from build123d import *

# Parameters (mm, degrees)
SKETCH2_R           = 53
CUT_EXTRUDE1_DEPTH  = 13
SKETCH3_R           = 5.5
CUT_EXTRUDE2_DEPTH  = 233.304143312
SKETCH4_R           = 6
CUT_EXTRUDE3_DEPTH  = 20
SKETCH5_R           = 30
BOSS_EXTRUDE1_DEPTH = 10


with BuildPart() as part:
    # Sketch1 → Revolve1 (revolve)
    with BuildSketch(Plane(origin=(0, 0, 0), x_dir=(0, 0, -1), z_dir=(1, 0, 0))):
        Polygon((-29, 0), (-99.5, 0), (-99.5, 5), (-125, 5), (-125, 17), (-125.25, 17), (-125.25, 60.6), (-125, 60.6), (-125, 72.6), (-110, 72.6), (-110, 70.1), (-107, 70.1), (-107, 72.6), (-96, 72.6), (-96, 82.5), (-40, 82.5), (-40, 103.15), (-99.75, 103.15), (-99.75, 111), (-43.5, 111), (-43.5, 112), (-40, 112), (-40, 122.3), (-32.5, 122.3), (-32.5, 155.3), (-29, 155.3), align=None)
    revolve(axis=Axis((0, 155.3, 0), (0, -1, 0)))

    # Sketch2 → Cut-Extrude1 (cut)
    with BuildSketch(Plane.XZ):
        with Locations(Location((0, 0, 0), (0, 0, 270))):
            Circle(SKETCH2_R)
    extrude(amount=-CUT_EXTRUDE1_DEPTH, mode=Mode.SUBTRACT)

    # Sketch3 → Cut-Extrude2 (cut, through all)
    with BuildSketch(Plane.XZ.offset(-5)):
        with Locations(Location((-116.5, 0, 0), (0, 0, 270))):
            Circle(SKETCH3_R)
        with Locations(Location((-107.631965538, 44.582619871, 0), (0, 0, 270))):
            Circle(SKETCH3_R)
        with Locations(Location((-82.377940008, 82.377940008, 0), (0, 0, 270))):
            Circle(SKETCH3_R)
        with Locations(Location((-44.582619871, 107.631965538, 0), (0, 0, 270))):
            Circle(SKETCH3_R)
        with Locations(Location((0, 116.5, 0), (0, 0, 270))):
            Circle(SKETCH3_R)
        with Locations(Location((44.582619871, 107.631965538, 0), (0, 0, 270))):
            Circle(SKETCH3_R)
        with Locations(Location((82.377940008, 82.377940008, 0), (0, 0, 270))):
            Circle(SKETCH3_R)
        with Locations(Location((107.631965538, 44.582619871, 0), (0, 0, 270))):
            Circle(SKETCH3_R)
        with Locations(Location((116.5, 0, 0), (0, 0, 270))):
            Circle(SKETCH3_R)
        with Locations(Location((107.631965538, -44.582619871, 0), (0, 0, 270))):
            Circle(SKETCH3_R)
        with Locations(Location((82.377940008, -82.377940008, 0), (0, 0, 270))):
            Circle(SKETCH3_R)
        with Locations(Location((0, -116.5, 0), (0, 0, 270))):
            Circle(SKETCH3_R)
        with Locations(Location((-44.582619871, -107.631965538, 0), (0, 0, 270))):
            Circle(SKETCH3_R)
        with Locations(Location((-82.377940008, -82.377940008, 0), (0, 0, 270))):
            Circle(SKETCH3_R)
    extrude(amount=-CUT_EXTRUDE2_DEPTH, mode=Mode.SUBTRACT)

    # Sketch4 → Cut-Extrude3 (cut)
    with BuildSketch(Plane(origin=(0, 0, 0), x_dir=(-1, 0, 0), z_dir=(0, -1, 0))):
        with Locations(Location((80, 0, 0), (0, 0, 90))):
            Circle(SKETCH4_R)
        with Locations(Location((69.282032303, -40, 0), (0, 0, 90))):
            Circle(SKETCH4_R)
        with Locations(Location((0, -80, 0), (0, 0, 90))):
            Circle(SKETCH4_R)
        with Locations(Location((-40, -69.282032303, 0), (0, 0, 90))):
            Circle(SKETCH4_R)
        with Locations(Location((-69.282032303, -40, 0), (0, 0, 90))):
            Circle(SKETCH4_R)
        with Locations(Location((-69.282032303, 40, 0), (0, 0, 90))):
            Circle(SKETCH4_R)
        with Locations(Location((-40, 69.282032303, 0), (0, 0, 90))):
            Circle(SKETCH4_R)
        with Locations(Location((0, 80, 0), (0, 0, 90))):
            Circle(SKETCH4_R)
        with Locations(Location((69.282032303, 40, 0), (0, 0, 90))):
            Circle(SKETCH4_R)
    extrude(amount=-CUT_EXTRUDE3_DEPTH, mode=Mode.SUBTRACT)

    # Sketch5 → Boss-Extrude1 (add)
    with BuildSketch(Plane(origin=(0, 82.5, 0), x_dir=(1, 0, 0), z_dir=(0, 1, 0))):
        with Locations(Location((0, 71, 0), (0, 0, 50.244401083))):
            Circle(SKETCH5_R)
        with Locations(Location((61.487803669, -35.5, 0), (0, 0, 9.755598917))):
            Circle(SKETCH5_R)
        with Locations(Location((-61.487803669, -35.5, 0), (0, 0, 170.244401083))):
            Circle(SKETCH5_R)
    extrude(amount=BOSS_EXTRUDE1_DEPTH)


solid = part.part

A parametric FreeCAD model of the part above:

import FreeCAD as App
import Part
import Sketcher
Q = App.Units.Quantity

doc = App.newDocument("Part")
body = doc.addObject("PartDesign::Body", "Body")

sketch1 = body.newObject("Sketcher::SketchObject", "Sketch")
sketch1.AttachmentSupport = (doc.getObject("YZ_Plane"), [""])
sketch1.MapMode = "FlatFace"
sketch1.addGeometry(Part.LineSegment(App.Vector(0, 99.5, 0), App.Vector(0, 29, 0)), False)
sketch1.addGeometry(Part.LineSegment(App.Vector(0, 29, 0), App.Vector(155.3, 29, 0)), False)
sketch1.addGeometry(Part.LineSegment(App.Vector(155.3, 29, 0), App.Vector(155.3, 32.5, 0)), False)
sketch1.addGeometry(Part.LineSegment(App.Vector(155.3, 32.5, 0), App.Vector(122.3, 32.5, 0)), False)
sketch1.addGeometry(Part.LineSegment(App.Vector(122.3, 32.5, 0), App.Vector(122.3, 40, 0)), False)
sketch1.addGeometry(Part.LineSegment(App.Vector(122.3, 40, 0), App.Vector(112, 40, 0)), False)
sketch1.addGeometry(Part.LineSegment(App.Vector(112, 40, 0), App.Vector(112, 43.5, 0)), False)
sketch1.addGeometry(Part.LineSegment(App.Vector(112, 43.5, 0), App.Vector(111, 43.5, 0)), False)
sketch1.addGeometry(Part.LineSegment(App.Vector(111, 43.5, 0), App.Vector(111, 99.75, 0)), False)
sketch1.addGeometry(Part.LineSegment(App.Vector(111, 99.75, 0), App.Vector(103.15, 99.75, 0)), False)
sketch1.addGeometry(Part.LineSegment(App.Vector(103.15, 99.75, 0), App.Vector(103.15, 40, 0)), False)
sketch1.addGeometry(Part.LineSegment(App.Vector(103.15, 40, 0), App.Vector(82.5, 40, 0)), False)
sketch1.addGeometry(Part.LineSegment(App.Vector(82.5, 40, 0), App.Vector(82.5, 96, 0)), False)
sketch1.addGeometry(Part.LineSegment(App.Vector(82.5, 96, 0), App.Vector(72.6, 96, 0)), False)
sketch1.addGeometry(Part.LineSegment(App.Vector(72.6, 96, 0), App.Vector(72.6, 107, 0)), False)
sketch1.addGeometry(Part.LineSegment(App.Vector(72.6, 107, 0), App.Vector(70.1, 107, 0)), False)
sketch1.addGeometry(Part.LineSegment(App.Vector(70.1, 107, 0), App.Vector(70.1, 110, 0)), False)
sketch1.addGeometry(Part.LineSegment(App.Vector(70.1, 110, 0), App.Vector(72.6, 110, 0)), False)
sketch1.addGeometry(Part.LineSegment(App.Vector(72.6, 110, 0), App.Vector(72.6, 125, 0)), False)
sketch1.addGeometry(Part.LineSegment(App.Vector(72.6, 125, 0), App.Vector(60.6, 125, 0)), False)
sketch1.addGeometry(Part.LineSegment(App.Vector(60.6, 125, 0), App.Vector(60.6, 125.25, 0)), False)
sketch1.addGeometry(Part.LineSegment(App.Vector(60.6, 125.25, 0), App.Vector(17, 125.25, 0)), False)
sketch1.addGeometry(Part.LineSegment(App.Vector(17, 125.25, 0), App.Vector(17, 125, 0)), False)
sketch1.addGeometry(Part.LineSegment(App.Vector(17, 125, 0), App.Vector(5, 125, 0)), False)
sketch1.addGeometry(Part.LineSegment(App.Vector(5, 125, 0), App.Vector(5, 99.5, 0)), False)
sketch1.addGeometry(Part.LineSegment(App.Vector(5, 99.5, 0), App.Vector(0, 99.5, 0)), False)
sketch1.addConstraint(Sketcher.Constraint("Coincident", 0, 2, 1, 1))
sketch1.addConstraint(Sketcher.Constraint("Coincident", 1, 2, 2, 1))
sketch1.addConstraint(Sketcher.Constraint("Coincident", 2, 2, 3, 1))
sketch1.addConstraint(Sketcher.Constraint("Coincident", 3, 2, 4, 1))
sketch1.addConstraint(Sketcher.Constraint("Coincident", 4, 2, 5, 1))
sketch1.addConstraint(Sketcher.Constraint("Coincident", 5, 2, 6, 1))
sketch1.addConstraint(Sketcher.Constraint("Coincident", 6, 2, 7, 1))
sketch1.addConstraint(Sketcher.Constraint("Coincident", 7, 2, 8, 1))
sketch1.addConstraint(Sketcher.Constraint("Coincident", 8, 2, 9, 1))
sketch1.addConstraint(Sketcher.Constraint("Coincident", 9, 2, 10, 1))
sketch1.addConstraint(Sketcher.Constraint("Coincident", 10, 2, 11, 1))
sketch1.addConstraint(Sketcher.Constraint("Coincident", 11, 2, 12, 1))
sketch1.addConstraint(Sketcher.Constraint("Coincident", 12, 2, 13, 1))
sketch1.addConstraint(Sketcher.Constraint("Coincident", 13, 2, 14, 1))
sketch1.addConstraint(Sketcher.Constraint("Coincident", 14, 2, 15, 1))
sketch1.addConstraint(Sketcher.Constraint("Coincident", 15, 2, 16, 1))
sketch1.addConstraint(Sketcher.Constraint("Coincident", 16, 2, 17, 1))
sketch1.addConstraint(Sketcher.Constraint("Coincident", 17, 2, 18, 1))
sketch1.addConstraint(Sketcher.Constraint("Coincident", 18, 2, 19, 1))
sketch1.addConstraint(Sketcher.Constraint("Coincident", 19, 2, 20, 1))
sketch1.addConstraint(Sketcher.Constraint("Coincident", 20, 2, 21, 1))
sketch1.addConstraint(Sketcher.Constraint("Coincident", 21, 2, 22, 1))
sketch1.addConstraint(Sketcher.Constraint("Coincident", 22, 2, 23, 1))
sketch1.addConstraint(Sketcher.Constraint("Coincident", 23, 2, 24, 1))
sketch1.addConstraint(Sketcher.Constraint("Coincident", 24, 2, 25, 1))
sketch1.addConstraint(Sketcher.Constraint("Coincident", 25, 2, 0, 1))
sketch1.addConstraint(Sketcher.Constraint("Vertical", 0))
sketch1.addConstraint(Sketcher.Constraint("Horizontal", 1))
sketch1.addConstraint(Sketcher.Constraint("Vertical", 2))
sketch1.addConstraint(Sketcher.Constraint("Horizontal", 3))
sketch1.addConstraint(Sketcher.Constraint("Vertical", 4))
sketch1.addConstraint(Sketcher.Constraint("Horizontal", 5))
sketch1.addConstraint(Sketcher.Constraint("Vertical", 6))
sketch1.addConstraint(Sketcher.Constraint("Horizontal", 7))
sketch1.addConstraint(Sketcher.Constraint("Vertical", 8))
sketch1.addConstraint(Sketcher.Constraint("Horizontal", 9))
sketch1.addConstraint(Sketcher.Constraint("Vertical", 10))
sketch1.addConstraint(Sketcher.Constraint("Horizontal", 11))
sketch1.addConstraint(Sketcher.Constraint("Vertical", 12))
sketch1.addConstraint(Sketcher.Constraint("Horizontal", 13))
sketch1.addConstraint(Sketcher.Constraint("Vertical", 14))
sketch1.addConstraint(Sketcher.Constraint("Horizontal", 15))
sketch1.addConstraint(Sketcher.Constraint("Vertical", 16))
sketch1.addConstraint(Sketcher.Constraint("Horizontal", 17))
sketch1.addConstraint(Sketcher.Constraint("Vertical", 18))
sketch1.addConstraint(Sketcher.Constraint("Horizontal", 19))
sketch1.addConstraint(Sketcher.Constraint("Vertical", 20))
sketch1.addConstraint(Sketcher.Constraint("Horizontal", 21))
sketch1.addConstraint(Sketcher.Constraint("Vertical", 22))
sketch1.addConstraint(Sketcher.Constraint("Horizontal", 23))
sketch1.addConstraint(Sketcher.Constraint("Vertical", 24))
sketch1.addConstraint(Sketcher.Constraint("Horizontal", 25))
sketch1.addConstraint(Sketcher.Constraint("PointOnObject", 0, 2, -2))
sketch1.addConstraint(Sketcher.Constraint("Horizontal", 5, 2, 10, 2))
sketch1.addConstraint(Sketcher.Constraint("Horizontal", 19, 2, 22, 2))
sketch1.addConstraint(Sketcher.Constraint("Vertical", 14, 2, 17, 2))
sketch1.addConstraint(Sketcher.Constraint("Equal", 19, 23))
sketch1.addConstraint(Sketcher.Constraint("Equal", 2, 6))
sketch1.addConstraint(Sketcher.Constraint("DistanceX", 3, 2, 3, 1, Q("33 mm")))
sketch1.addConstraint(Sketcher.Constraint("DistanceX", 7, 2, 7, 1, Q("1 mm")))
sketch1.addConstraint(Sketcher.Constraint("DistanceX", 19, 2, 19, 1, Q("12 mm")))
sketch1.addConstraint(Sketcher.Constraint("DistanceX", 25, 2, 25, 1, Q("5 mm")))
sketch1.addConstraint(Sketcher.Constraint("DistanceY", 12, 1, 12, 2, Q("56 mm")))
sketch1.addConstraint(Sketcher.Constraint("DistanceY", 14, 1, 14, 2, Q("11 mm")))
sketch1.addConstraint(Sketcher.Constraint("DistanceY", 16, 1, 16, 2, Q("3 mm")))
sketch1.addConstraint(Sketcher.Constraint("DistanceY", 18, 1, 18, 2, Q("15 mm")))
sketch1.addConstraint(Sketcher.Constraint("DistanceX", 1, 1, 1, 2, Q("155.3 mm")))
sketch1.addConstraint(Sketcher.Constraint("DistanceX", 5, 2, 5, 1, Q("10.3 mm")))
sketch1.addConstraint(Sketcher.Constraint("DistanceX", 13, 2, 13, 1, Q("9.9 mm")))
sketch1.addConstraint(Sketcher.Constraint("DistanceX", 15, 2, 15, 1, Q("2.5 mm")))
sketch1.addConstraint(Sketcher.Constraint("DistanceX", 21, 2, 21, 1, Q("43.6 mm")))
sketch1.addConstraint(Sketcher.Constraint("DistanceY", 0, 2, 0, 1, Q("70.5 mm")))
sketch1.addConstraint(Sketcher.Constraint("DistanceY", 2, 1, 2, 2, Q("3.5 mm")))
sketch1.addConstraint(Sketcher.Constraint("DistanceY", 4, 1, 4, 2, Q("7.5 mm")))
sketch1.addConstraint(Sketcher.Constraint("DistanceY", -1, 1, 0, 2, Q("29 mm")))
sketch1.addConstraint(Sketcher.Constraint("DistanceX", 9, 2, 9, 1, Q("7.85 mm")))
sketch1.addConstraint(Sketcher.Constraint("DistanceY", 8, 1, 8, 2, Q("56.25 mm")))
sketch1.addConstraint(Sketcher.Constraint("DistanceY", 20, 1, 20, 2, Q("0.25 mm")))
revolution = body.newObject("PartDesign::Revolution", "Revolution")
revolution.Profile = sketch1
revolution.ReferenceAxis = (sketch1, ["H_Axis"])
revolution.Angle = 360

sketch2 = body.newObject("Sketcher::SketchObject", "Sketch001")
sketch2.AttachmentSupport = (doc.getObject("XZ_Plane"), [""])
sketch2.MapMode = "FlatFace"
sketch2.addGeometry(Part.Circle(App.Vector(0, 0, 0), App.Vector(0, 0, 1), 53), False)
sketch2.addConstraint(Sketcher.Constraint("Coincident", 0, 3, -1, 1))
sketch2.addConstraint(Sketcher.Constraint("Diameter", 0, Q("106 mm")))
pocket1 = body.newObject("PartDesign::Pocket", "Pocket")
pocket1.Profile = sketch2
pocket1.Length = 13

sketch3 = body.newObject("Sketcher::SketchObject", "Sketch002")
sketch3.AttachmentSupport = (doc.getObject("XZ_Plane"), [""])
sketch3.MapMode = "FlatFace"
sketch3.AttachmentOffset = App.Placement(App.Vector(0, 0, -5), App.Rotation())
sketch3.addGeometry(Part.Circle(App.Vector(-116, 0, 0), App.Vector(0, 0, 1), 6), False)
sketch3.addGeometry(Part.Circle(App.Vector(-108, 45, 0), App.Vector(0, 0, 1), 6), False)
sketch3.addGeometry(Part.Circle(App.Vector(-82, 82, 0), App.Vector(0, 0, 1), 6), False)
sketch3.addGeometry(Part.Circle(App.Vector(-45, 108, 0), App.Vector(0, 0, 1), 6), False)
sketch3.addGeometry(Part.Circle(App.Vector(0, 116, 0), App.Vector(0, 0, 1), 6), False)
sketch3.addGeometry(Part.Circle(App.Vector(45, 108, 0), App.Vector(0, 0, 1), 6), False)
sketch3.addGeometry(Part.Circle(App.Vector(82, 82, 0), App.Vector(0, 0, 1), 6), False)
sketch3.addGeometry(Part.Circle(App.Vector(108, 45, 0), App.Vector(0, 0, 1), 6), False)
sketch3.addGeometry(Part.Circle(App.Vector(116, 0, 0), App.Vector(0, 0, 1), 6), False)
sketch3.addGeometry(Part.Circle(App.Vector(108, -45, 0), App.Vector(0, 0, 1), 6), False)
sketch3.addGeometry(Part.Circle(App.Vector(82, -82, 0), App.Vector(0, 0, 1), 6), False)
sketch3.addGeometry(Part.Circle(App.Vector(0, -116, 0), App.Vector(0, 0, 1), 6), False)
sketch3.addGeometry(Part.Circle(App.Vector(-45, -108, 0), App.Vector(0, 0, 1), 6), False)
sketch3.addGeometry(Part.Circle(App.Vector(-82, -82, 0), App.Vector(0, 0, 1), 6), False)
sketch3.addConstraint(Sketcher.Constraint("Equal", 0, 1))
sketch3.addConstraint(Sketcher.Constraint("Equal", 1, 2))
sketch3.addConstraint(Sketcher.Constraint("Equal", 2, 3))
sketch3.addConstraint(Sketcher.Constraint("Equal", 3, 4))
sketch3.addConstraint(Sketcher.Constraint("Equal", 4, 5))
sketch3.addConstraint(Sketcher.Constraint("Equal", 5, 6))
sketch3.addConstraint(Sketcher.Constraint("Equal", 6, 7))
sketch3.addConstraint(Sketcher.Constraint("Equal", 7, 8))
sketch3.addConstraint(Sketcher.Constraint("Equal", 8, 9))
sketch3.addConstraint(Sketcher.Constraint("Equal", 9, 10))
sketch3.addConstraint(Sketcher.Constraint("Equal", 10, 11))
sketch3.addConstraint(Sketcher.Constraint("Equal", 11, 12))
sketch3.addConstraint(Sketcher.Constraint("Equal", 12, 13))
sketch3.addConstraint(Sketcher.Constraint("Symmetric", 0, 3, 8, 3, -1, 1))
sketch3.addConstraint(Sketcher.Constraint("Symmetric", 1, 3, 9, 3, -1, 1))
sketch3.addConstraint(Sketcher.Constraint("Symmetric", 2, 3, 10, 3, -1, 1))
sketch3.addConstraint(Sketcher.Constraint("Symmetric", 4, 3, 11, 3, -1, 1))
sketch3.addConstraint(Sketcher.Constraint("Symmetric", 5, 3, 12, 3, -1, 1))
sketch3.addConstraint(Sketcher.Constraint("Symmetric", 6, 3, 13, 3, -1, 1))
sketch3.addConstraint(Sketcher.Constraint("Symmetric", 3, 3, 5, 3, -2))
sketch3.addConstraint(Sketcher.Constraint("Symmetric", 2, 3, 6, 3, -2))
sketch3.addConstraint(Sketcher.Constraint("Symmetric", 1, 3, 7, 3, -2))
sketch3.addConstraint(Sketcher.Constraint("PointOnObject", 0, 3, -1))
sketch3.addConstraint(Sketcher.Constraint("PointOnObject", 4, 3, -2))
sketch3.addConstraint(Sketcher.Constraint("Diameter", 0, Q("11 mm")))
sketch3.addConstraint(Sketcher.Constraint("DistanceX", 0, 3, -1, 1, Q("116.5 mm")))
sketch3.addConstraint(Sketcher.Constraint("DistanceY", -1, 1, 4, 3, Q("116.5 mm")))
sketch3.addConstraint(Sketcher.Constraint("DistanceY", -1, 1, 1, 3, Q("44.58262 mm")))
sketch3.addConstraint(Sketcher.Constraint("DistanceX", 2, 3, -1, 1, Q("82.37794 mm")))
sketch3.addConstraint(Sketcher.Constraint("DistanceY", -1, 1, 2, 3, Q("82.37794 mm")))
sketch3.addConstraint(Sketcher.Constraint("DistanceX", 3, 3, -1, 1, Q("44.58262 mm")))
sketch3.addConstraint(Sketcher.Constraint("DistanceX", 1, 3, -1, 1, Q("107.631966 mm")))
sketch3.addConstraint(Sketcher.Constraint("DistanceY", -1, 1, 3, 3, Q("107.631966 mm")))
pocket2 = body.newObject("PartDesign::Pocket", "Pocket001")
pocket2.Profile = sketch3
pocket2.Type = "ThroughAll"

sketch4 = body.newObject("Sketcher::SketchObject", "Sketch003")
sketch4.AttachmentSupport = (doc.getObject("XZ_Plane"), [""])
sketch4.MapMode = "FlatFace"
sketch4.addGeometry(Part.Circle(App.Vector(-80, 0, 0), App.Vector(0, 0, 1), 6), False)
sketch4.addGeometry(Part.Circle(App.Vector(-69, 40, 0), App.Vector(0, 0, 1), 6), False)
sketch4.addGeometry(Part.Circle(App.Vector(0, 80, 0), App.Vector(0, 0, 1), 6), False)
sketch4.addGeometry(Part.Circle(App.Vector(40, 69, 0), App.Vector(0, 0, 1), 6), False)
sketch4.addGeometry(Part.Circle(App.Vector(69, 40, 0), App.Vector(0, 0, 1), 6), False)
sketch4.addGeometry(Part.Circle(App.Vector(69, -40, 0), App.Vector(0, 0, 1), 6), False)
sketch4.addGeometry(Part.Circle(App.Vector(40, -69, 0), App.Vector(0, 0, 1), 6), False)
sketch4.addGeometry(Part.Circle(App.Vector(0, -80, 0), App.Vector(0, 0, 1), 6), False)
sketch4.addGeometry(Part.Circle(App.Vector(-69, -40, 0), App.Vector(0, 0, 1), 6), False)
sketch4.addConstraint(Sketcher.Constraint("Equal", 0, 1))
sketch4.addConstraint(Sketcher.Constraint("Equal", 1, 2))
sketch4.addConstraint(Sketcher.Constraint("Equal", 2, 3))
sketch4.addConstraint(Sketcher.Constraint("Equal", 3, 4))
sketch4.addConstraint(Sketcher.Constraint("Equal", 4, 5))
sketch4.addConstraint(Sketcher.Constraint("Equal", 5, 6))
sketch4.addConstraint(Sketcher.Constraint("Equal", 6, 7))
sketch4.addConstraint(Sketcher.Constraint("Equal", 7, 8))
sketch4.addConstraint(Sketcher.Constraint("Symmetric", 1, 3, 5, 3, -1, 1))
sketch4.addConstraint(Sketcher.Constraint("Symmetric", 2, 3, 7, 3, -1, 1))
sketch4.addConstraint(Sketcher.Constraint("Symmetric", 4, 3, 8, 3, -1, 1))
sketch4.addConstraint(Sketcher.Constraint("Symmetric", 1, 3, 4, 3, -2))
sketch4.addConstraint(Sketcher.Constraint("Symmetric", 3, 3, 6, 3, -1))
sketch4.addConstraint(Sketcher.Constraint("PointOnObject", 0, 3, -1))
sketch4.addConstraint(Sketcher.Constraint("PointOnObject", 2, 3, -2))
sketch4.addConstraint(Sketcher.Constraint("Diameter", 0, Q("12 mm")))
sketch4.addConstraint(Sketcher.Constraint("DistanceX", 0, 3, -1, 1, Q("80 mm")))
sketch4.addConstraint(Sketcher.Constraint("DistanceY", -1, 1, 1, 3, Q("40 mm")))
sketch4.addConstraint(Sketcher.Constraint("DistanceY", -1, 1, 2, 3, Q("80 mm")))
sketch4.addConstraint(Sketcher.Constraint("DistanceX", -1, 1, 3, 3, Q("40 mm")))
sketch4.addConstraint(Sketcher.Constraint("DistanceX", 1, 3, -1, 1, Q("69.282032 mm")))
sketch4.addConstraint(Sketcher.Constraint("DistanceY", -1, 1, 3, 3, Q("69.282032 mm")))
pocket3 = body.newObject("PartDesign::Pocket", "Pocket002")
pocket3.Profile = sketch4
pocket3.Length = 20

sketch5 = body.newObject("Sketcher::SketchObject", "Sketch004")
sketch5.AttachmentSupport = (doc.getObject("XZ_Plane"), [""])
sketch5.MapMode = "FlatFace"
sketch5.AttachmentOffset = App.Placement(App.Vector(0, 0, -82.5), App.Rotation())
sketch5.addGeometry(Part.Circle(App.Vector(0, -71, 0), App.Vector(0, 0, 1), 30), False)
sketch5.addGeometry(Part.Circle(App.Vector(61, 36, 0), App.Vector(0, 0, 1), 30), False)
sketch5.addGeometry(Part.Circle(App.Vector(-61, 36, 0), App.Vector(0, 0, 1), 30), False)
sketch5.addConstraint(Sketcher.Constraint("Equal", 0, 1))
sketch5.addConstraint(Sketcher.Constraint("Equal", 1, 2))
sketch5.addConstraint(Sketcher.Constraint("Symmetric", 1, 3, 2, 3, -2))
sketch5.addConstraint(Sketcher.Constraint("PointOnObject", 0, 3, -2))
sketch5.addConstraint(Sketcher.Constraint("Diameter", 0, Q("60 mm")))
sketch5.addConstraint(Sketcher.Constraint("DistanceY", 0, 3, -1, 1, Q("71 mm")))
sketch5.addConstraint(Sketcher.Constraint("DistanceY", -1, 1, 1, 3, Q("35.5 mm")))
sketch5.addConstraint(Sketcher.Constraint("DistanceX", -1, 1, 1, 3, Q("61.487804 mm")))
pad1 = body.newObject("PartDesign::Pad", "Pad")
pad1.Profile = sketch5
pad1.Length = 10
pad1.Reversed = True

doc.recompute()
